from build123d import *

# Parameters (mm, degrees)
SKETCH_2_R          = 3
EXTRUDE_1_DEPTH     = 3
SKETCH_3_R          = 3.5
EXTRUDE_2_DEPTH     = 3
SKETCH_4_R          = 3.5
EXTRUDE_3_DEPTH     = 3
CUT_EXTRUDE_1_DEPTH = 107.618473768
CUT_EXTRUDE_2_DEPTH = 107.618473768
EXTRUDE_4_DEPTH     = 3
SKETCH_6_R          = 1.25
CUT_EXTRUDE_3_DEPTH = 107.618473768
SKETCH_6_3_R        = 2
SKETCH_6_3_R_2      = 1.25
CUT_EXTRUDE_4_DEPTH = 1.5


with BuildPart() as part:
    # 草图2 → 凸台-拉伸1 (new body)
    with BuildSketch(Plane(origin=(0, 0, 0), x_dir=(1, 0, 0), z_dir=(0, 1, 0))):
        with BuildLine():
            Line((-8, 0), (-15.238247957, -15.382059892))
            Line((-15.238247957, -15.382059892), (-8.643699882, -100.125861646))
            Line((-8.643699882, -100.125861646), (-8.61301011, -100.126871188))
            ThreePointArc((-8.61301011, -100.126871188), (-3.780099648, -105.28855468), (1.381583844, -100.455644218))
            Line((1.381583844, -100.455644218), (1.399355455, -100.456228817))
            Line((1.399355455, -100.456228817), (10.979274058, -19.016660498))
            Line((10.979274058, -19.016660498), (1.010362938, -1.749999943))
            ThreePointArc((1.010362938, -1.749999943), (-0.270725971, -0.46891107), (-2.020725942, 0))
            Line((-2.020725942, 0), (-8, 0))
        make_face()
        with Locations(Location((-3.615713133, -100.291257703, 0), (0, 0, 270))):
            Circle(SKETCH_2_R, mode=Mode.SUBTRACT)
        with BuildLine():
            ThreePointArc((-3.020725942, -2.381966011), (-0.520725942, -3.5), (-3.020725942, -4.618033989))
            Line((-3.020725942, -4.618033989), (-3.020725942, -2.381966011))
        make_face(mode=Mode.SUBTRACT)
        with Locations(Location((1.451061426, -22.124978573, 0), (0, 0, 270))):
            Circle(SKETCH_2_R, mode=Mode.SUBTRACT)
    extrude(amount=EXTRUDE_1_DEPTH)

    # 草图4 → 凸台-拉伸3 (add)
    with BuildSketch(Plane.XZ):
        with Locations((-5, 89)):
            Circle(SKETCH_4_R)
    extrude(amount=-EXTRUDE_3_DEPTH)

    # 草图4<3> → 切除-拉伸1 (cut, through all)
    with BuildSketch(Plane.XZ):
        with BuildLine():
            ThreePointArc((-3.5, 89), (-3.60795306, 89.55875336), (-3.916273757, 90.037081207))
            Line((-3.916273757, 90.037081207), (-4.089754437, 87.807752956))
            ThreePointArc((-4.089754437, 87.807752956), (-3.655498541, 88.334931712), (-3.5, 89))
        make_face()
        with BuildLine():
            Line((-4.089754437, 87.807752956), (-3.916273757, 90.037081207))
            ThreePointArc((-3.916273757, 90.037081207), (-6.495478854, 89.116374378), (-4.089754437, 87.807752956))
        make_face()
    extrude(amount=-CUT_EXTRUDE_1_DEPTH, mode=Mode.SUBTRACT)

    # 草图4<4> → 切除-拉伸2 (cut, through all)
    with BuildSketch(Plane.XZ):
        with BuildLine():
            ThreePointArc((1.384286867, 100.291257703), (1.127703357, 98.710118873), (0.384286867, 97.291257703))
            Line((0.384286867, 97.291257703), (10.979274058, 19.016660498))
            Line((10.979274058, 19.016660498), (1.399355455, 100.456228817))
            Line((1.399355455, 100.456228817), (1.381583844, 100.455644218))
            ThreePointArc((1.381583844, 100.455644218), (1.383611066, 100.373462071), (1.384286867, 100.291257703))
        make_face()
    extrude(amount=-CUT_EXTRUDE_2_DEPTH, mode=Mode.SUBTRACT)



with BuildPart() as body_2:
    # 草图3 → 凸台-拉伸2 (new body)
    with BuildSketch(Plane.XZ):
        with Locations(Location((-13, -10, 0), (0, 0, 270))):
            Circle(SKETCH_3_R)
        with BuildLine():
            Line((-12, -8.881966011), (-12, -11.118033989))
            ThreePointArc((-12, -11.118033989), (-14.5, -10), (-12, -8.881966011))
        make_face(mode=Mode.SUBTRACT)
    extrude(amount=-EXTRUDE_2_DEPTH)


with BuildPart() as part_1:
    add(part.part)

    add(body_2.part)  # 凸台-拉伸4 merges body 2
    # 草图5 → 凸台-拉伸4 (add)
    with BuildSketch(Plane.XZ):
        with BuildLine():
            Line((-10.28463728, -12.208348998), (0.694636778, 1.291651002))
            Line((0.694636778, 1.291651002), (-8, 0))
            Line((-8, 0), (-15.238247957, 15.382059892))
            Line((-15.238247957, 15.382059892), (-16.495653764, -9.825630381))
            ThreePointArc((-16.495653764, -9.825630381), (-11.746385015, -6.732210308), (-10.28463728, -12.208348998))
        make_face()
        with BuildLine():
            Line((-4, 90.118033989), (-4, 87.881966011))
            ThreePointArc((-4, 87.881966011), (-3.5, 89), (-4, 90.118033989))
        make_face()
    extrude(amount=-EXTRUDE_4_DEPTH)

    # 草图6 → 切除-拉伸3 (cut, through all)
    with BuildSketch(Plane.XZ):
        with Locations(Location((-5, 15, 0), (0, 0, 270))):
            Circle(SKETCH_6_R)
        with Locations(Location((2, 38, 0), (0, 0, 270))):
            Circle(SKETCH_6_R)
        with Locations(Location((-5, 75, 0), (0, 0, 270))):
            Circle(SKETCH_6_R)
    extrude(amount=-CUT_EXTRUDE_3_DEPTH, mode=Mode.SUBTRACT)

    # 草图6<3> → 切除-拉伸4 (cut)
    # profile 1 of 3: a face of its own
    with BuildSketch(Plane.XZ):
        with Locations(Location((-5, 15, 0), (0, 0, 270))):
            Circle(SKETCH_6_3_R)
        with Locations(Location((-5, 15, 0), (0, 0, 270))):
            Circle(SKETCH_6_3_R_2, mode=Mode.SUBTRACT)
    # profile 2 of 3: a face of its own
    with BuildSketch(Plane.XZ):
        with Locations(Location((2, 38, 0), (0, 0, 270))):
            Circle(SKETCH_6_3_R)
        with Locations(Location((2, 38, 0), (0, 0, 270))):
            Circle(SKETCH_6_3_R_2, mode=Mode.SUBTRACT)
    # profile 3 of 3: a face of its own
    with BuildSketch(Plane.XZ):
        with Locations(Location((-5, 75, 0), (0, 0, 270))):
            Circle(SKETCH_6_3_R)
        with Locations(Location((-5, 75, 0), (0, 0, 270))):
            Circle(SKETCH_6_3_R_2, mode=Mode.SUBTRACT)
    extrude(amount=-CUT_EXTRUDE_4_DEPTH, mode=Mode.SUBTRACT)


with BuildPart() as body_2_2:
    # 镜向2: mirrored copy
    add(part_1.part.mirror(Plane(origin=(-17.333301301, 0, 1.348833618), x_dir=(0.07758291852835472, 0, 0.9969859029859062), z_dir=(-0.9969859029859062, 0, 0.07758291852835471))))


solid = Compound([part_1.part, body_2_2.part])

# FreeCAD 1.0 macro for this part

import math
import FreeCAD as App
import Part
import Sketcher

V = App.Vector
Q = App.Units.Quantity

doc = App.newDocument("Part")
body = doc.addObject("PartDesign::Body", "Body")

# Sketch on XZ plane
sketch1 = body.newObject("Sketcher::SketchObject", "Sketch")
sketch1.AttachmentSupport = (doc.getObject("XZ_Plane"), [""])
sketch1.MapMode = "FlatFace"
sketch1.addGeometry([
    Part.LineSegment(V(-8, 0, 0), V(-15.238, 15.382, 0)),  # 0
    Part.LineSegment(V(-15.238, 15.382, 0), V(-8.644, 100.126, 0)),  # 1
    Part.LineSegment(V(-8.644, 100.126, 0), V(-8.613, 100.127, 0)),  # 2
    Part.ArcOfCircle(Part.Circle(V(-3.616, 100.291, 0), V(0, 0, 1), 5), math.radians(2), math.radians(182)),  # 3
    Part.LineSegment(V(1.382, 100.456, 0), V(1.399, 100.456, 0)),  # 4
    Part.LineSegment(V(1.399, 100.456, 0), V(10.979, 19.017, 0)),  # 5
    Part.LineSegment(V(10.979, 19.017, 0), V(1.01, 1.75, 0)),  # 6
    Part.ArcOfCircle(Part.Circle(V(-2.021, 3.5, 0), V(0, 0, 1), 3.5), math.radians(-90), math.radians(-30)),  # 7
    Part.LineSegment(V(-2.021, 0, 0), V(-8, 0, 0)),  # 8
    Part.Circle(V(-3.616, 100.291, 0), V(0, 0, 1), 3),  # 9
    Part.LineSegment(V(-3.021, 4.618, 0), V(-3.021, 2.382, 0)),  # 10
    Part.ArcOfCircle(Part.Circle(V(-2.021, 3.5, 0), V(0, 0, 1), 1.5), math.radians(-132), math.radians(132)),  # 11
    Part.Circle(V(1.451, 22.125, 0), V(0, 0, 1), 3),  # 12
], False)
sketch1.addConstraint([
    Sketcher.Constraint("Coincident", 0, 2, 1, 1),
    Sketcher.Constraint("Coincident", 1, 2, 2, 1),
    Sketcher.Constraint("Coincident", 2, 2, 3, 2),
    Sketcher.Constraint("Coincident", 3, 1, 4, 1),
    Sketcher.Constraint("Coincident", 4, 2, 5, 1),
    Sketcher.Constraint("Coincident", 5, 2, 6, 1),
    Sketcher.Constraint("Tangent", 6, 2, 7, 2),
    Sketcher.Constraint("Tangent", 7, 1, 8, 1),
    Sketcher.Constraint("Coincident", 8, 2, 0, 1),
    Sketcher.Constraint("Coincident", 10, 1, 11, 2),
    Sketcher.Constraint("Coincident", 11, 1, 10, 2),
    Sketcher.Constraint("Horizontal", 8),
    Sketcher.Constraint("Vertical", 10),
    Sketcher.Constraint("Coincident", 9, 3, 3, 3),
    Sketcher.Constraint("Coincident", 11, 3, 7, 3),
    Sketcher.Constraint("Equal", 9, 12),
    Sketcher.Constraint("PointOnObject", 7, 1, -1),
    Sketcher.Constraint("Parallel", 2, 4),
    Sketcher.Constraint("Diameter", 9, 6.0),
    Sketcher.Constraint("Radius", 3, 5.0),
    Sketcher.Constraint("Radius", 7, 3.5),
    Sketcher.Constraint("Radius", 11, 1.5),
    Sketcher.Constraint("Angle", 6, Q("-120 deg")),
    Sketcher.Constraint("Distance", 0, 17.0),
    Sketcher.Constraint("Distance", 1, 85.0),
    Sketcher.Constraint("DistanceX", 8, 2, -1, 1, 8.0),
    Sketcher.Constraint("Angle", 0, Q("115.2 deg")),
    Sketcher.Constraint("DistanceX", 11, 3, 5, 2, 13.0),
    Sketcher.Constraint("DistanceX", 10, 1, 11, 3, 1.0),
    Sketcher.Constraint("DistanceX", 1, 2, -1, 1, 8.6437),
    Sketcher.Constraint("DistanceX", 6, 2, 12, 3, 0.440698),
    Sketcher.Constraint("Distance", 4, 0.017781),
    Sketcher.Constraint("DistanceX", 8, 2, 8, 1, 5.979274),
    Sketcher.Constraint("DistanceY", -1, 1, 12, 3, 22.124979),
    Sketcher.Constraint("DistanceX", 2, 2, -1, 1, 8.61301),
    Sketcher.Constraint("DistanceY", -1, 1, 2, 2, 100.126871),
    Sketcher.Constraint("DistanceY", -1, 1, 4, 2, 100.456229),
    Sketcher.Constraint("DistanceY", 12, 3, 3, 3, 78.166279),
])
pad1 = body.newObject("PartDesign::Pad", "Pad")
pad1.Profile = sketch1
pad1.Length = 3
pad1.Reversed = True

# Sketch on XZ plane
sketch2 = body.newObject("Sketcher::SketchObject", "Sketch001")
sketch2.AttachmentSupport = (doc.getObject("XZ_Plane"), [""])
sketch2.MapMode = "FlatFace"
sketch2.addGeometry(Part.Circle(V(-5, 89, 0), V(0, 0, 1), 3.5), False)
sketch2.addConstraint([
    Sketcher.Constraint("Diameter", 0, 7.0),
    Sketcher.Constraint("DistanceX", 0, 3, -1, 1, 5.0),
    Sketcher.Constraint("DistanceY", -1, 1, 0, 3, 89.0),
])
pad2 = body.newObject("PartDesign::Pad", "Pad001")
pad2.Profile = sketch2
pad2.Length = 3
pad2.Reversed = True

# Sketch on XZ plane
sketch3 = body.newObject("Sketcher::SketchObject", "Sketch002")
sketch3.AttachmentSupport = (doc.getObject("XZ_Plane"), [""])
sketch3.MapMode = "FlatFace"
sketch3.addGeometry([
    Part.ArcOfCircle(Part.Circle(V(-5, 89, 0), V(0, 0, 1), 1.5), math.radians(0), math.radians(44)),
    Part.ArcOfCircle(Part.Circle(V(-5, 89, 0), V(0, 0, 1), 1.5), math.radians(44), math.radians(307)),
    Part.ArcOfCircle(Part.Circle(V(-5, 89, 0), V(0, 0, 1), 1.5), math.radians(-53), math.radians(0)),
], False)
sketch3.addConstraint([
    Sketcher.Constraint("Tangent", 0, 2, 1, 1),
    Sketcher.Constraint("Tangent", 1, 2, 2, 1),
    Sketcher.Constraint("Tangent", 2, 2, 0, 1),
    Sketcher.Constraint("Horizontal", 1, 3, 2, 2),
    Sketcher.Constraint("Radius", 0, 1.5),
    Sketcher.Constraint("DistanceX", 0, 3, -1, 1, 5.0),
    Sketcher.Constraint("DistanceY", -1, 1, 0, 3, 89.0),
    Sketcher.Constraint("DistanceY", -1, 1, 0, 2, 90.037081),
    Sketcher.Constraint("DistanceX", 1, 2, 0, 2, 0.173481),
])
pocket1 = body.newObject("PartDesign::Pocket", "Pocket")
pocket1.Profile = sketch3
pocket1.Type = "ThroughAll"

# Sketch on XZ plane
sketch4 = body.newObject("Sketcher::SketchObject", "Sketch003")
sketch4.AttachmentSupport = (doc.getObject("XZ_Plane"), [""])
sketch4.MapMode = "FlatFace"
sketch4.addGeometry([
    Part.ArcOfCircle(Part.Circle(V(-3.615713, 100.291258, 0), V(0, 0, 1), 5), math.radians(-36.869898), math.radians(0)),  # 0
    Part.LineSegment(V(0.384287, 97.291258, 0), V(10.979274, 19.01666, 0)),  # 1
    Part.LineSegment(V(10.979274, 19.01666, 0), V(1.399355, 100.456229, 0)),  # 2
    Part.LineSegment(V(1.399355, 100.456229, 0), V(1.381584, 100.455644, 0)),  # 3
    Part.ArcOfCircle(Part.Circle(V(-3.615711, 100.291258, 0), V(0, 0, 1), 4.999997), math.radians(-0.000001), math.radians(1.884071)),  # 4
], False)
sketch4.addConstraint([
    Sketcher.Constraint("Coincident", 0, 1, 1, 1),
    Sketcher.Constraint("Coincident", 1, 2, 2, 1),
    Sketcher.Constraint("Coincident", 2, 2, 3, 1),
    Sketcher.Constraint("Coincident", 3, 2, 4, 2),
    Sketcher.Constraint("Tangent", 4, 1, 0, 2),
    Sketcher.Constraint("Horizontal", 0, 3, 4, 1),
    Sketcher.Constraint("Radius", 0, 5.0),
    Sketcher.Constraint("DistanceY", 0, 1, 4, 3, 3.0),
    Sketcher.Constraint("Radius", 4, 4.999997),
    Sketcher.Constraint("Distance", 3, 0.017781),
    Sketcher.Constraint("DistanceX", 4, 3, -1, 1, 3.615711),
    Sketcher.Constraint("DistanceY", -1, 1, 1, 2, 19.01666),
    Sketcher.Constraint("DistanceY", -1, 1, 2, 2, 100.456229),
    Sketcher.Constraint("DistanceX", 0, 1, 2, 2, 1.015069),
    Sketcher.Constraint("DistanceX", 2, 2, 1, 2, 9.579919),
    Sketcher.Constraint("DistanceX", 3, 2, 2, 2, 0.017772),
])
pocket2 = body.newObject("PartDesign::Pocket", "Pocket001")
pocket2.Profile = sketch4
pocket2.Type = "ThroughAll"
body2 = doc.addObject("PartDesign::Body", "Body001")

# Sketch on XZ plane
sketch5 = body2.newObject("Sketcher::SketchObject", "Sketch004")
sketch5.AttachmentSupport = (doc.getObject("XZ_Plane001"), [""])
sketch5.MapMode = "FlatFace"
sketch5.addGeometry([
    Part.Circle(V(-13, -10, 0), V(0, 0, 1), 3.5),
    Part.ArcOfCircle(Part.Circle(V(-13, -10, 0), V(0, 0, 1), 1.5), math.radians(48), math.radians(312)),
    Part.LineSegment(V(-12, -8.9, 0), V(-12, -11.1, 0)),
], False)
sketch5.addConstraint([
    Sketcher.Constraint("Coincident", 1, 1, 2, 1),
    Sketcher.Constraint("Coincident", 2, 2, 1, 2),
    Sketcher.Constraint("Vertical", 2),
    Sketcher.Constraint("Coincident", 1, 3, 0, 3),
    Sketcher.Constraint("Diameter", 0, 7.0),
    Sketcher.Constraint("Radius", 1, 1.5),
    Sketcher.Constraint("DistanceX", 0, 3, -1, 1, 13.0),
    Sketcher.Constraint("DistanceY", 0, 3, -1, 1, 10.0),
    Sketcher.Constraint("DistanceX", 1, 1, -1, 1, 12.0),
])
pad3 = body2.newObject("PartDesign::Pad", "Pad002")
pad3.Profile = sketch5
pad3.Length = 3
pad3.Reversed = True
body.AllowCompound = True
doc.recompute()

boolean = body.newObject("PartDesign::Boolean", "Boolean")
boolean.Type = "Fuse"
boolean.addObjects([body2])

# Sketch on XZ plane
sketch6 = body.newObject("Sketcher::SketchObject", "Sketch005")
sketch6.AttachmentSupport = (doc.getObject("XZ_Plane"), [""])
sketch6.MapMode = "FlatFace"
sketch6.addGeometry([
    Part.LineSegment(V(-10.3, -12.2, 0), V(0.7, 1.3, 0)),  # 0
    Part.LineSegment(V(0.7, 1.3, 0), V(-8, 0, 0)),  # 1
    Part.LineSegment(V(-8, 0, 0), V(-15.2, 15.4, 0)),  # 2
    Part.LineSegment(V(-15.2, 15.4, 0), V(-16.5, -9.8, 0)),  # 3
    Part.ArcOfCircle(Part.Circle(V(-13, -10, 0), V(0, 0, 1), 3.5), math.radians(-39), math.radians(177)),  # 4
    Part.LineSegment(V(-4, 90.1, 0), V(-4, 87.9, 0)),  # 5
    Part.ArcOfCircle(Part.Circle(V(-5, 89, 0), V(0, 0, 1), 1.5), math.radians(-48), math.radians(48)),  # 6
], False)
sketch6.addConstraint([
    Sketcher.Constraint("Coincident", 0, 2, 1, 1),
    Sketcher.Constraint("Coincident", 1, 2, 2, 1),
    Sketcher.Constraint("Coincident", 2, 2, 3, 1),
    Sketcher.Constraint("Tangent", 3, 2, 4, 2),
    Sketcher.Constraint("Tangent", 4, 1, 0, 1),
    Sketcher.Constraint("Coincident", 5, 1, 6, 2),
    Sketcher.Constraint("Coincident", 6, 1, 5, 2),
    Sketcher.Constraint("Vertical", 5),
    Sketcher.Constraint("PointOnObject", 1, 2, -1),
    Sketcher.Constraint("Radius", 4, 3.5),
    Sketcher.Constraint("Radius", 6, 1.5),
    Sketcher.Constraint("Distance", 2, 17.0),
    Sketcher.Constraint("DistanceX", 4, 3, -1, 1, 13.0),
    Sketcher.Constraint("DistanceY", 4, 3, -1, 1, 10.0),
    Sketcher.Constraint("DistanceX", 6, 3, -1, 1, 5.0),
    Sketcher.Constraint("DistanceY", -1, 1, 6, 3, 89.0),
    Sketcher.Constraint("DistanceX", 1, 2, -1, 1, 8.0),
    Sketcher.Constraint("DistanceX", 5, 1, -1, 1, 4.0),
    Sketcher.Constraint("Angle", 2, Q("115.2 deg")),
    Sketcher.Constraint("DistanceY", 4, 1, 0, 2, 13.5),
    Sketcher.Constraint("Distance", 0, 17.40099),
])
pad4 = body.newObject("PartDesign::Pad", "Pad003")
pad4.Profile = sketch6
pad4.Length = 3
pad4.Reversed = True

# Sketch on XZ plane
sketch7 = body.newObject("Sketcher::SketchObject", "Sketch006")
sketch7.AttachmentSupport = (doc.getObject("XZ_Plane"), [""])
sketch7.MapMode = "FlatFace"
sketch7.addGeometry([
    Part.Circle(V(-5, 15, 0), V(0, 0, 1), 1.2),
    Part.Circle(V(2, 38, 0), V(0, 0, 1), 1.2),
    Part.Circle(V(-5, 75, 0), V(0, 0, 1), 1.2),
], False)
sketch7.addConstraint([
    Sketcher.Constraint("Equal", 0, 1),
    Sketcher.Constraint("Equal", 1, 2),
    Sketcher.Constraint("Vertical", 0, 3, 2, 3),
    Sketcher.Constraint("Diameter", 0, 2.5),
    Sketcher.Constraint("DistanceX", 0, 3, -1, 1, 5.0),
    Sketcher.Constraint("DistanceY", -1, 1, 0, 3, 15.0),
    Sketcher.Constraint("DistanceX", -1, 1, 1, 3, 2.0),
    Sketcher.Constraint("DistanceY", -1, 1, 1, 3, 38.0),
    Sketcher.Constraint("DistanceY", -1, 1, 2, 3, 75.0),
])
pocket3 = body.newObject("PartDesign::Pocket", "Pocket002")
pocket3.Profile = sketch7
pocket3.Type = "ThroughAll"

# Sketch on XZ plane
sketch8 = body.newObject("Sketcher::SketchObject", "Sketch007")
sketch8.AttachmentSupport = (doc.getObject("XZ_Plane"), [""])
sketch8.MapMode = "FlatFace"
sketch8.addGeometry([
    Part.Circle(V(-5, 15, 0), V(0, 0, 1), 2),  # 0
    Part.Circle(V(-5, 15, 0), V(0, 0, 1), 1.2),  # 1
    Part.Circle(V(2, 38, 0), V(0, 0, 1), 2),  # 2
    Part.Circle(V(2, 38, 0), V(0, 0, 1), 1.2),  # 3
    Part.Circle(V(-5, 75, 0), V(0, 0, 1), 2),  # 4
    Part.Circle(V(-5, 75, 0), V(0, 0, 1), 1.2),  # 5
], False)
sketch8.addConstraint([
    Sketcher.Constraint("Coincident", 1, 3, 0, 3),
    Sketcher.Constraint("Coincident", 3, 3, 2, 3),
    Sketcher.Constraint("Coincident", 5, 3, 4, 3),
    Sketcher.Constraint("Equal", 0, 2),
    Sketcher.Constraint("Equal", 1, 3),
    Sketcher.Constraint("Equal", 2, 4),
    Sketcher.Constraint("Equal", 3, 5),
    Sketcher.Constraint("Vertical", 1, 3, 4, 3),
    Sketcher.Constraint("Diameter", 0, 4.0),
    Sketcher.Constraint("Diameter", 1, 2.5),
    Sketcher.Constraint("DistanceX", 0, 3, -1, 1, 5.0),
    Sketcher.Constraint("DistanceY", -1, 1, 0, 3, 15.0),
    Sketcher.Constraint("DistanceX", -1, 1, 2, 3, 2.0),
    Sketcher.Constraint("DistanceY", -1, 1, 2, 3, 38.0),
    Sketcher.Constraint("DistanceY", -1, 1, 4, 3, 75.0),
])
pocket4 = body.newObject("PartDesign::Pocket", "Pocket003")
pocket4.Profile = sketch8
pocket4.Length = 1.5
body3 = doc.addObject("PartDesign::Body", "Body002")
doc.recompute()

mirroring = doc.addObject("Part::Mirroring", "Mirroring")
mirroring.Source = body
mirroring.Base = V(-17.333301, 0, 1.348834)
mirroring.Normal = V(-0.996985903, 0, 0.077582919)
body3.BaseFeature = mirroring
doc.recompute()
mirroring.Visibility = False

doc.recompute()
